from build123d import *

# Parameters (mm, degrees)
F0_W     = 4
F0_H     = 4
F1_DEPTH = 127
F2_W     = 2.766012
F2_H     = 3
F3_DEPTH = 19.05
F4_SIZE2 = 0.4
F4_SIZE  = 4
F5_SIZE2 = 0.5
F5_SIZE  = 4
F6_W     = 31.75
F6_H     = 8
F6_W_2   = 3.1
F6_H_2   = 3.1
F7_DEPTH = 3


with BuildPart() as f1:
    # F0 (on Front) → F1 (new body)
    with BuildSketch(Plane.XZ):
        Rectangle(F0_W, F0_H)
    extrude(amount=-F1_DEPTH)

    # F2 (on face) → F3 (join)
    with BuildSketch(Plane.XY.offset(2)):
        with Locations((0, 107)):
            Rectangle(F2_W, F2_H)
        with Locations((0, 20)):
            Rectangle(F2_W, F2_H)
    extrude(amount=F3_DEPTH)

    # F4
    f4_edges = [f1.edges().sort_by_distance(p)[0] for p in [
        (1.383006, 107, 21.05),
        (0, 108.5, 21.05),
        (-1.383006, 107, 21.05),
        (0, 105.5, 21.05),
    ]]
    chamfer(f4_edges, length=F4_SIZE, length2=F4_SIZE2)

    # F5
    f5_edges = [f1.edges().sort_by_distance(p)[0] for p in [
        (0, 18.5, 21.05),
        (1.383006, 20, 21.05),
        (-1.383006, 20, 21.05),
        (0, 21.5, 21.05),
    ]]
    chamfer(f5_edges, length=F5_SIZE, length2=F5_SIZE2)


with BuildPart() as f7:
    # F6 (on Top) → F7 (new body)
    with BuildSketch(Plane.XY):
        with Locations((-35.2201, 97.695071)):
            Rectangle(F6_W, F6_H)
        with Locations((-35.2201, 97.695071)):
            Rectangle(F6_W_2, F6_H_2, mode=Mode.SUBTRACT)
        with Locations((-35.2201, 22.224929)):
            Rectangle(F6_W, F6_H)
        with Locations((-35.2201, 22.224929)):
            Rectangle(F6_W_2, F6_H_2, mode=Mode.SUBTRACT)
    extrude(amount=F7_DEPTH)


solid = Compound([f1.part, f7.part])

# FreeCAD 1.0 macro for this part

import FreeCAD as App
import Part
import Sketcher
Q = App.Units.Quantity


def edges_at(feature, points):
    """Names of the edges that pass closest to the given points."""
    edges = feature.Shape.Edges
    near = lambda p: min(range(len(edges)), key=lambda i: edges[i].distToShape(Part.Vertex(*p))[0])
    return sorted({f"Edge{near(p) + 1}" for p in points})


def add_polygon(sketch, points):
    """Adds a closed chain of lines whose ends are joined by coincident constraints."""
    first, n = sketch.GeometryCount, len(points)
    for a, b in zip(points, points[1:] + points[:1]):
        sketch.addGeometry(Part.LineSegment(App.Vector(*a, 0), App.Vector(*b, 0)), False)
    for i in range(n):
        sketch.addConstraint(Sketcher.Constraint("Coincident", first + i, 2, first + (i + 1) % n, 1))

doc = App.newDocument("Part")
body = doc.addObject("PartDesign::Body", "Body")

sketch1 = body.newObject("Sketcher::SketchObject", "Sketch")
sketch1.AttachmentSupport = (doc.getObject("XZ_Plane"), [""])
sketch1.MapMode = "FlatFace"
add_polygon(sketch1, [(-2, 2), (-2, -2), (2, -2), (2, 2)])
sketch1.addConstraint(Sketcher.Constraint("Vertical", 0))
sketch1.addConstraint(Sketcher.Constraint("Horizontal", 1))
sketch1.addConstraint(Sketcher.Constraint("Vertical", 2))
sketch1.addConstraint(Sketcher.Constraint("Horizontal", 3))
sketch1.addConstraint(Sketcher.Constraint("Symmetric", 0, 2, 2, 2, -1, 1))
sketch1.addConstraint(Sketcher.Constraint("Equal", 3, 0))
sketch1.addConstraint(Sketcher.Constraint("DistanceX", 1, 1, 1, 2, Q("4 mm")))
pad1 = body.newObject("PartDesign::Pad", "Pad")
pad1.Profile = sketch1
pad1.Length = 127
pad1.Reversed = True

sketch2 = body.newObject("Sketcher::SketchObject", "Sketch001")
sketch2.AttachmentSupport = (doc.getObject("XY_Plane"), [""])
sketch2.MapMode = "FlatFace"
sketch2.AttachmentOffset = App.Placement(App.Vector(0, 0, 2), App.Rotation())
add_polygon(sketch2, [(-1.4, 108.5), (-1.4, 105.5), (1.4, 105.5), (1.4, 108.5)])
add_polygon(sketch2, [(-1.4, 21.5), (-1.4, 18.5), (1.4, 18.5), (1.4, 21.5)])
sketch2.addConstraint(Sketcher.Constraint("Vertical", 0))
sketch2.addConstraint(Sketcher.Constraint("Horizontal", 1))
sketch2.addConstraint(Sketcher.Constraint("Vertical", 2))
sketch2.addConstraint(Sketcher.Constraint("Horizontal", 3))
sketch2.addConstraint(Sketcher.Constraint("Vertical", 4))
sketch2.addConstraint(Sketcher.Constraint("Horizontal", 5))
sketch2.addConstraint(Sketcher.Constraint("Vertical", 6))
sketch2.addConstraint(Sketcher.Constraint("Horizontal", 7))
sketch2.addConstraint(Sketcher.Constraint("Vertical", 3, 2, 4, 2))
sketch2.addConstraint(Sketcher.Constraint("Vertical", 2, 2, 5, 2))
sketch2.addConstraint(Sketcher.Constraint("Equal", 2, 4))
sketch2.addConstraint(Sketcher.Constraint("DistanceY", 0, 2, 0, 1, Q("3 mm")))
sketch2.addConstraint(Sketcher.Constraint("DistanceY", 4, 2, 0, 2, Q("87 mm")))
sketch2.addConstraint(Sketcher.Constraint("DistanceY", -1, 1, 0, 2, Q("105.5 mm")))
sketch2.addConstraint(Sketcher.Constraint("DistanceX", 1, 1, 1, 2, Q("2.766012 mm")))
sketch2.addConstraint(Sketcher.Constraint("DistanceX", 0, 2, -1, 1, Q("1.383006 mm")))
pad2 = body.newObject("PartDesign::Pad", "Pad001")
pad2.Profile = sketch2
pad2.Length = 19.05
doc.recompute()

chamfer = body.newObject("PartDesign::Chamfer", "Chamfer")
chamfer.Base = (pad2, edges_at(pad2, [
    (1.383, 107, 21.05),
    (0, 108.5, 21.05),
    (-1.383, 107, 21.05),
    (0, 105.5, 21.05),
]))
chamfer.ChamferType = "Two distances"
chamfer.Size = 4
chamfer.Size2 = 0.4
doc.recompute()

chamfer2 = body.newObject("PartDesign::Chamfer", "Chamfer001")
chamfer2.Base = (chamfer, edges_at(chamfer, [
    (0, 18.5, 21.05),
    (1.383, 20, 21.05),
    (-1.383, 20, 21.05),
    (0, 21.5, 21.05),
]))
chamfer2.ChamferType = "Two distances"
chamfer2.Size = 4
chamfer2.Size2 = 0.5
body2 = doc.addObject("PartDesign::Body", "Body001")
body2.AllowCompound = True

sketch3 = body2.newObject("Sketcher::SketchObject", "Sketch002")
sketch3.AttachmentSupport = (doc.getObject("XY_Plane001"), [""])
sketch3.MapMode = "FlatFace"
add_polygon(sketch3, [(-51.1, 101.7), (-51.1, 93.7), (-19.3, 93.7), (-19.3, 101.7)])
add_polygon(sketch3, [(-33.7, 96.1), (-36.8, 96.1), (-36.8, 99.2), (-33.7, 99.2)])
add_polygon(sketch3, [(-51.1, 26.2), (-51.1, 18.2), (-19.3, 18.2), (-19.3, 26.2)])
add_polygon(sketch3, [(-33.7, 20.7), (-36.8, 20.7), (-36.8, 23.8), (-33.7, 23.8)])
sketch3.addConstraint(Sketcher.Constraint("Vertical", 0))
sketch3.addConstraint(Sketcher.Constraint("Horizontal", 1))
sketch3.addConstraint(Sketcher.Constraint("Vertical", 2))
sketch3.addConstraint(Sketcher.Constraint("Horizontal", 3))
sketch3.addConstraint(Sketcher.Constraint("Horizontal", 4))
sketch3.addConstraint(Sketcher.Constraint("Vertical", 5))
sketch3.addConstraint(Sketcher.Constraint("Horizontal", 6))
sketch3.addConstraint(Sketcher.Constraint("Vertical", 7))
sketch3.addConstraint(Sketcher.Constraint("Vertical", 8))
sketch3.addConstraint(Sketcher.Constraint("Horizontal", 9))
sketch3.addConstraint(Sketcher.Constraint("Vertical", 10))
sketch3.addConstraint(Sketcher.Constraint("Horizontal", 11))
sketch3.addConstraint(Sketcher.Constraint("Horizontal", 12))
sketch3.addConstraint(Sketcher.Constraint("Vertical", 13))
sketch3.addConstraint(Sketcher.Constraint("Horizontal", 14))
sketch3.addConstraint(Sketcher.Constraint("Vertical", 15))
sketch3.addConstraint(Sketcher.Constraint("Vertical", 3, 2, 8, 2))
sketch3.addConstraint(Sketcher.Constraint("Vertical", 2, 2, 9, 2))
sketch3.addConstraint(Sketcher.Constraint("Vertical", 5, 2, 12, 2))
sketch3.addConstraint(Sketcher.Constraint("Vertical", 7, 2, 14, 2))
sketch3.addConstraint(Sketcher.Constraint("Equal", 14, 5))
sketch3.addConstraint(Sketcher.Constraint("Equal", 2, 8))
sketch3.addConstraint(Sketcher.Constraint("Equal", 7, 13))
sketch3.addConstraint(Sketcher.Constraint("DistanceY", 0, 2, 0, 1, Q("8 mm")))
sketch3.addConstraint(Sketcher.Constraint("DistanceX", 4, 2, 4, 1, Q("3.1 mm")))
sketch3.addConstraint(Sketcher.Constraint("DistanceX", 1, 1, 1, 2, Q("31.75 mm")))
sketch3.addConstraint(Sketcher.Constraint("DistanceY", 0, 2, 4, 2, Q("2.45 mm")))
sketch3.addConstraint(Sketcher.Constraint("DistanceY", 8, 2, 12, 2, Q("2.45 mm")))
sketch3.addConstraint(Sketcher.Constraint("DistanceX", 0, 2, 4, 2, Q("14.325 mm")))
sketch3.addConstraint(Sketcher.Constraint("DistanceX", 0, 2, -1, 1, Q("51.0951 mm")))
sketch3.addConstraint(Sketcher.Constraint("DistanceY", -1, 1, 0, 2, Q("93.695071 mm")))
sketch3.addConstraint(Sketcher.Constraint("DistanceY", -1, 1, 8, 2, Q("18.224929 mm")))
pad3 = body2.newObject("PartDesign::Pad", "Pad002")
pad3.Profile = sketch3
pad3.Length = 3

doc.recompute()
